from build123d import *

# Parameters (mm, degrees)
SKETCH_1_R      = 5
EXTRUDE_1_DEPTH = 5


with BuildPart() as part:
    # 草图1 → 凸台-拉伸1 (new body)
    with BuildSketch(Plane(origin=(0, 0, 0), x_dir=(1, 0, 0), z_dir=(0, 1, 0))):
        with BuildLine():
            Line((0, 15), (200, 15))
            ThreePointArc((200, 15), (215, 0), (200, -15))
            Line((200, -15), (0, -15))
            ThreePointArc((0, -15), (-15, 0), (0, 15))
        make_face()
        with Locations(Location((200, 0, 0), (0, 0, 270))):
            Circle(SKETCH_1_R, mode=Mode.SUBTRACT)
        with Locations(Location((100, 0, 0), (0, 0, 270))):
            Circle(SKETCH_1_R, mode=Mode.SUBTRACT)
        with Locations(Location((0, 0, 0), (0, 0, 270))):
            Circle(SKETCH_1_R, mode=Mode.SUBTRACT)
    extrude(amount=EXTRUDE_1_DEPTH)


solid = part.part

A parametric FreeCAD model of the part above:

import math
import FreeCAD as App
import Part
import Sketcher
from FreeCAD import Vector

doc = App.newDocument("Part")
body = doc.addObject("PartDesign::Body", "Body")

# Sketch on XZ plane
sketch1 = body.newObject("Sketcher::SketchObject", "Sketch")
sketch1.AttachmentSupport = (doc.getObject("XZ_Plane"), [""])
sketch1.MapMode = "FlatFace"
sketch1.addGeometry(Part.LineSegment(Vector(200, -15, 0), Vector(0, -15, 0)), False)
sketch1.addGeometry(Part.ArcOfCircle(Part.Circle(Vector(0, 0, 0), Vector(0, 0, 1), 15), math.radians(90), math.radians(270)), False)
sketch1.addGeometry(Part.LineSegment(Vector(0, 15, 0), Vector(200, 15, 0)), False)
sketch1.addGeometry(Part.ArcOfCircle(Part.Circle(Vector(200, 0, 0), Vector(0, 0, 1), 15), math.radians(-90), math.radians(90)), False)
sketch1.addGeometry(Part.Circle(Vector(200, 0, 0), Vector(0, 0, 1), 5), False)
sketch1.addGeometry(Part.Circle(Vector(100, 0, 0), Vector(0, 0, 1), 5), False)
sketch1.addGeometry(Part.Circle(Vector(0, 0, 0), Vector(0, 0, 1), 5), False)
sketch1.addConstraint(Sketcher.Constraint("Tangent", 0, 2, 1, 2))
sketch1.addConstraint(Sketcher.Constraint("Tangent", 1, 1, 2, 1))
sketch1.addConstraint(Sketcher.Constraint("Tangent", 2, 2, 3, 2))
sketch1.addConstraint(Sketcher.Constraint("Tangent", 3, 1, 0, 1))
sketch1.addConstraint(Sketcher.Constraint("Horizontal", 0))
sketch1.addConstraint(Sketcher.Constraint("Horizontal", 2))
sketch1.addConstraint(Sketcher.Constraint("Coincident", 1, 3, -1, 1))
sketch1.addConstraint(Sketcher.Constraint("Coincident", 6, 3, -1, 1))
sketch1.addConstraint(Sketcher.Constraint("Coincident", 4, 3, 3, 3))
sketch1.addConstraint(Sketcher.Constraint("Equal", 4, 5))
sketch1.addConstraint(Sketcher.Constraint("Equal", 5, 6))
sketch1.addConstraint(Sketcher.Constraint("PointOnObject", 5, 3, -1))
sketch1.addConstraint(Sketcher.Constraint("Diameter", 4, 10.0))
sketch1.addConstraint(Sketcher.Constraint("Radius", 1, 15.0))
sketch1.addConstraint(Sketcher.Constraint("DistanceX", 0, 2, 0, 1, 200.0))
sketch1.addConstraint(Sketcher.Constraint("DistanceX", -1, 1, 5, 3, 100.0))
pad1 = body.newObject("PartDesign::Pad", "Pad")
pad1.Profile = sketch1
pad1.Length = 5
pad1.Reversed = True

doc.recompute()
